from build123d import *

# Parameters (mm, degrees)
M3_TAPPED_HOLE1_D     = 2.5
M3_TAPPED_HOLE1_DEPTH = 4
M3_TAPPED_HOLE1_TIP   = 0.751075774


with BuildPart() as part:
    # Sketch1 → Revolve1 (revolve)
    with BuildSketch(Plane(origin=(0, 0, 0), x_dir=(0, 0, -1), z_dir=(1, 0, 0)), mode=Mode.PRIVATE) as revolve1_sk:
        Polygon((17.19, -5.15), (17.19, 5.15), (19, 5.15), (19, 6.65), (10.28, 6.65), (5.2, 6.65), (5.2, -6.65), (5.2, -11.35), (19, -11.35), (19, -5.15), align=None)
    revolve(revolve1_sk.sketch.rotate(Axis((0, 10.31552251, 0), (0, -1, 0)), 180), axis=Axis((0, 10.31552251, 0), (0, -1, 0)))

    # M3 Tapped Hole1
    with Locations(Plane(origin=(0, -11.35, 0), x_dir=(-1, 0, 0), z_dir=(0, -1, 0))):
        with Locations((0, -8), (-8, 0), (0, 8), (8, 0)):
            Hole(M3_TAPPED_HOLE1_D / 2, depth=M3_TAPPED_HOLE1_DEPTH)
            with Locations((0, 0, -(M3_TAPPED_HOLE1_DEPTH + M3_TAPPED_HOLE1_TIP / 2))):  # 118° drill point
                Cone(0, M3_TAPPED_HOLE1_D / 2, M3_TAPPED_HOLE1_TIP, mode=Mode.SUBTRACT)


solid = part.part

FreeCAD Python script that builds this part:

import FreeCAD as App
import Part
import Sketcher

V = App.Vector
Q = App.Units.Quantity

doc = App.newDocument("Part")
body = doc.addObject("PartDesign::Body", "Body")

# Sketch on YZ plane
sketch1 = body.newObject("Sketcher::SketchObject", "Sketch")
sketch1.AttachmentSupport = (doc.getObject("YZ_Plane"), [""])
sketch1.MapMode = "FlatFace"
sketch1.addGeometry([
    Part.LineSegment(V(-5.2, -17.2, 0), V(5.2, -17.2, 0)),  # 0
    Part.LineSegment(V(5.2, -17.2, 0), V(5.2, -19, 0)),  # 1
    Part.LineSegment(V(5.2, -19, 0), V(6.7, -19, 0)),  # 2
    Part.LineSegment(V(6.7, -19, 0), V(6.7, -5.2, 0)),  # 3
    Part.LineSegment(V(6.7, -5.2, 0), V(-11.3, -5.2, 0)),  # 4
    Part.LineSegment(V(-11.3, -5.2, 0), V(-11.3, -19, 0)),  # 5
    Part.LineSegment(V(-11.3, -19, 0), V(-5.2, -19, 0)),  # 6
    Part.LineSegment(V(-5.2, -19, 0), V(-5.2, -17.2, 0)),  # 7
], False)
sketch1.addConstraint([
    Sketcher.Constraint("Coincident", 0, 2, 1, 1),
    Sketcher.Constraint("Coincident", 1, 2, 2, 1),
    Sketcher.Constraint("Coincident", 2, 2, 3, 1),
    Sketcher.Constraint("Coincident", 3, 2, 4, 1),
    Sketcher.Constraint("Coincident", 4, 2, 5, 1),
    Sketcher.Constraint("Coincident", 5, 2, 6, 1),
    Sketcher.Constraint("Coincident", 6, 2, 7, 1),
    Sketcher.Constraint("Coincident", 7, 2, 0, 1),
    Sketcher.Constraint("Horizontal", 0),
    Sketcher.Constraint("Vertical", 1),
    Sketcher.Constraint("Horizontal", 2),
    Sketcher.Constraint("Vertical", 3),
    Sketcher.Constraint("Horizontal", 4),
    Sketcher.Constraint("Vertical", 5),
    Sketcher.Constraint("Horizontal", 6),
    Sketcher.Constraint("Vertical", 7),
    Sketcher.Constraint("Symmetric", 1, 2, 6, 2, -2),
    Sketcher.Constraint("DistanceX", 4, 2, 4, 1, Q("18 mm")),
    Sketcher.Constraint("DistanceX", 0, 1, 0, 2, Q("10.3 mm")),
    Sketcher.Constraint("DistanceX", 2, 1, 2, 2, Q("1.5 mm")),
    Sketcher.Constraint("DistanceY", 3, 1, 3, 2, Q("13.8 mm")),
    Sketcher.Constraint("DistanceY", 1, 2, -1, 1, Q("19 mm")),
    Sketcher.Constraint("DistanceY", 1, 2, 1, 1, Q("1.81 mm")),
])
revolution = body.newObject("PartDesign::Revolution", "Revolution")
revolution.Profile = sketch1
revolution.ReferenceAxis = (sketch1, ["H_Axis"])
revolution.Angle = 360

# Sketch on XZ plane
sketch2 = body.newObject("Sketcher::SketchObject", "Sketch001")
sketch2.AttachmentSupport = (doc.getObject("XZ_Plane"), [""])
sketch2.MapMode = "FlatFace"
sketch2.AttachmentOffset = App.Placement(V(0, 0, 11.35), App.Rotation())
sketch2.addGeometry([
    Part.Circle(V(0, 8, 0), V(0, 0, 1), 1.2),
    Part.Circle(V(8, 0, 0), V(0, 0, 1), 1.2),
    Part.Circle(V(0, -8, 0), V(0, 0, 1), 1.2),
    Part.Circle(V(-8, 0, 0), V(0, 0, 1), 1.2),
], False)
sketch2.addConstraint([
    Sketcher.Constraint("Equal", 0, 1),
    Sketcher.Constraint("Equal", 1, 2),
    Sketcher.Constraint("Equal", 2, 3),
    Sketcher.Constraint("Symmetric", 0, 3, 2, 3, -1, 1),
    Sketcher.Constraint("Symmetric", 1, 3, 3, 3, -1, 1),
    Sketcher.Constraint("PointOnObject", 0, 3, -2),
    Sketcher.Constraint("PointOnObject", 1, 3, -1),
    Sketcher.Constraint("Diameter", 0, Q("2.5 mm")),
    Sketcher.Constraint("DistanceY", -1, 1, 0, 3, Q("8 mm")),
    Sketcher.Constraint("DistanceX", -1, 1, 1, 3, Q("8 mm")),
])
doc.recompute()
hole = body.newObject("PartDesign::Hole", "Hole")
hole.Profile = sketch2
hole.ThreadType = "None"
hole.Diameter = 2.5
hole.DepthType = "Dimension"
hole.Depth = 4
hole.DrillPoint = "Angled"
hole.DrillPointAngle = 118

doc.recompute()
